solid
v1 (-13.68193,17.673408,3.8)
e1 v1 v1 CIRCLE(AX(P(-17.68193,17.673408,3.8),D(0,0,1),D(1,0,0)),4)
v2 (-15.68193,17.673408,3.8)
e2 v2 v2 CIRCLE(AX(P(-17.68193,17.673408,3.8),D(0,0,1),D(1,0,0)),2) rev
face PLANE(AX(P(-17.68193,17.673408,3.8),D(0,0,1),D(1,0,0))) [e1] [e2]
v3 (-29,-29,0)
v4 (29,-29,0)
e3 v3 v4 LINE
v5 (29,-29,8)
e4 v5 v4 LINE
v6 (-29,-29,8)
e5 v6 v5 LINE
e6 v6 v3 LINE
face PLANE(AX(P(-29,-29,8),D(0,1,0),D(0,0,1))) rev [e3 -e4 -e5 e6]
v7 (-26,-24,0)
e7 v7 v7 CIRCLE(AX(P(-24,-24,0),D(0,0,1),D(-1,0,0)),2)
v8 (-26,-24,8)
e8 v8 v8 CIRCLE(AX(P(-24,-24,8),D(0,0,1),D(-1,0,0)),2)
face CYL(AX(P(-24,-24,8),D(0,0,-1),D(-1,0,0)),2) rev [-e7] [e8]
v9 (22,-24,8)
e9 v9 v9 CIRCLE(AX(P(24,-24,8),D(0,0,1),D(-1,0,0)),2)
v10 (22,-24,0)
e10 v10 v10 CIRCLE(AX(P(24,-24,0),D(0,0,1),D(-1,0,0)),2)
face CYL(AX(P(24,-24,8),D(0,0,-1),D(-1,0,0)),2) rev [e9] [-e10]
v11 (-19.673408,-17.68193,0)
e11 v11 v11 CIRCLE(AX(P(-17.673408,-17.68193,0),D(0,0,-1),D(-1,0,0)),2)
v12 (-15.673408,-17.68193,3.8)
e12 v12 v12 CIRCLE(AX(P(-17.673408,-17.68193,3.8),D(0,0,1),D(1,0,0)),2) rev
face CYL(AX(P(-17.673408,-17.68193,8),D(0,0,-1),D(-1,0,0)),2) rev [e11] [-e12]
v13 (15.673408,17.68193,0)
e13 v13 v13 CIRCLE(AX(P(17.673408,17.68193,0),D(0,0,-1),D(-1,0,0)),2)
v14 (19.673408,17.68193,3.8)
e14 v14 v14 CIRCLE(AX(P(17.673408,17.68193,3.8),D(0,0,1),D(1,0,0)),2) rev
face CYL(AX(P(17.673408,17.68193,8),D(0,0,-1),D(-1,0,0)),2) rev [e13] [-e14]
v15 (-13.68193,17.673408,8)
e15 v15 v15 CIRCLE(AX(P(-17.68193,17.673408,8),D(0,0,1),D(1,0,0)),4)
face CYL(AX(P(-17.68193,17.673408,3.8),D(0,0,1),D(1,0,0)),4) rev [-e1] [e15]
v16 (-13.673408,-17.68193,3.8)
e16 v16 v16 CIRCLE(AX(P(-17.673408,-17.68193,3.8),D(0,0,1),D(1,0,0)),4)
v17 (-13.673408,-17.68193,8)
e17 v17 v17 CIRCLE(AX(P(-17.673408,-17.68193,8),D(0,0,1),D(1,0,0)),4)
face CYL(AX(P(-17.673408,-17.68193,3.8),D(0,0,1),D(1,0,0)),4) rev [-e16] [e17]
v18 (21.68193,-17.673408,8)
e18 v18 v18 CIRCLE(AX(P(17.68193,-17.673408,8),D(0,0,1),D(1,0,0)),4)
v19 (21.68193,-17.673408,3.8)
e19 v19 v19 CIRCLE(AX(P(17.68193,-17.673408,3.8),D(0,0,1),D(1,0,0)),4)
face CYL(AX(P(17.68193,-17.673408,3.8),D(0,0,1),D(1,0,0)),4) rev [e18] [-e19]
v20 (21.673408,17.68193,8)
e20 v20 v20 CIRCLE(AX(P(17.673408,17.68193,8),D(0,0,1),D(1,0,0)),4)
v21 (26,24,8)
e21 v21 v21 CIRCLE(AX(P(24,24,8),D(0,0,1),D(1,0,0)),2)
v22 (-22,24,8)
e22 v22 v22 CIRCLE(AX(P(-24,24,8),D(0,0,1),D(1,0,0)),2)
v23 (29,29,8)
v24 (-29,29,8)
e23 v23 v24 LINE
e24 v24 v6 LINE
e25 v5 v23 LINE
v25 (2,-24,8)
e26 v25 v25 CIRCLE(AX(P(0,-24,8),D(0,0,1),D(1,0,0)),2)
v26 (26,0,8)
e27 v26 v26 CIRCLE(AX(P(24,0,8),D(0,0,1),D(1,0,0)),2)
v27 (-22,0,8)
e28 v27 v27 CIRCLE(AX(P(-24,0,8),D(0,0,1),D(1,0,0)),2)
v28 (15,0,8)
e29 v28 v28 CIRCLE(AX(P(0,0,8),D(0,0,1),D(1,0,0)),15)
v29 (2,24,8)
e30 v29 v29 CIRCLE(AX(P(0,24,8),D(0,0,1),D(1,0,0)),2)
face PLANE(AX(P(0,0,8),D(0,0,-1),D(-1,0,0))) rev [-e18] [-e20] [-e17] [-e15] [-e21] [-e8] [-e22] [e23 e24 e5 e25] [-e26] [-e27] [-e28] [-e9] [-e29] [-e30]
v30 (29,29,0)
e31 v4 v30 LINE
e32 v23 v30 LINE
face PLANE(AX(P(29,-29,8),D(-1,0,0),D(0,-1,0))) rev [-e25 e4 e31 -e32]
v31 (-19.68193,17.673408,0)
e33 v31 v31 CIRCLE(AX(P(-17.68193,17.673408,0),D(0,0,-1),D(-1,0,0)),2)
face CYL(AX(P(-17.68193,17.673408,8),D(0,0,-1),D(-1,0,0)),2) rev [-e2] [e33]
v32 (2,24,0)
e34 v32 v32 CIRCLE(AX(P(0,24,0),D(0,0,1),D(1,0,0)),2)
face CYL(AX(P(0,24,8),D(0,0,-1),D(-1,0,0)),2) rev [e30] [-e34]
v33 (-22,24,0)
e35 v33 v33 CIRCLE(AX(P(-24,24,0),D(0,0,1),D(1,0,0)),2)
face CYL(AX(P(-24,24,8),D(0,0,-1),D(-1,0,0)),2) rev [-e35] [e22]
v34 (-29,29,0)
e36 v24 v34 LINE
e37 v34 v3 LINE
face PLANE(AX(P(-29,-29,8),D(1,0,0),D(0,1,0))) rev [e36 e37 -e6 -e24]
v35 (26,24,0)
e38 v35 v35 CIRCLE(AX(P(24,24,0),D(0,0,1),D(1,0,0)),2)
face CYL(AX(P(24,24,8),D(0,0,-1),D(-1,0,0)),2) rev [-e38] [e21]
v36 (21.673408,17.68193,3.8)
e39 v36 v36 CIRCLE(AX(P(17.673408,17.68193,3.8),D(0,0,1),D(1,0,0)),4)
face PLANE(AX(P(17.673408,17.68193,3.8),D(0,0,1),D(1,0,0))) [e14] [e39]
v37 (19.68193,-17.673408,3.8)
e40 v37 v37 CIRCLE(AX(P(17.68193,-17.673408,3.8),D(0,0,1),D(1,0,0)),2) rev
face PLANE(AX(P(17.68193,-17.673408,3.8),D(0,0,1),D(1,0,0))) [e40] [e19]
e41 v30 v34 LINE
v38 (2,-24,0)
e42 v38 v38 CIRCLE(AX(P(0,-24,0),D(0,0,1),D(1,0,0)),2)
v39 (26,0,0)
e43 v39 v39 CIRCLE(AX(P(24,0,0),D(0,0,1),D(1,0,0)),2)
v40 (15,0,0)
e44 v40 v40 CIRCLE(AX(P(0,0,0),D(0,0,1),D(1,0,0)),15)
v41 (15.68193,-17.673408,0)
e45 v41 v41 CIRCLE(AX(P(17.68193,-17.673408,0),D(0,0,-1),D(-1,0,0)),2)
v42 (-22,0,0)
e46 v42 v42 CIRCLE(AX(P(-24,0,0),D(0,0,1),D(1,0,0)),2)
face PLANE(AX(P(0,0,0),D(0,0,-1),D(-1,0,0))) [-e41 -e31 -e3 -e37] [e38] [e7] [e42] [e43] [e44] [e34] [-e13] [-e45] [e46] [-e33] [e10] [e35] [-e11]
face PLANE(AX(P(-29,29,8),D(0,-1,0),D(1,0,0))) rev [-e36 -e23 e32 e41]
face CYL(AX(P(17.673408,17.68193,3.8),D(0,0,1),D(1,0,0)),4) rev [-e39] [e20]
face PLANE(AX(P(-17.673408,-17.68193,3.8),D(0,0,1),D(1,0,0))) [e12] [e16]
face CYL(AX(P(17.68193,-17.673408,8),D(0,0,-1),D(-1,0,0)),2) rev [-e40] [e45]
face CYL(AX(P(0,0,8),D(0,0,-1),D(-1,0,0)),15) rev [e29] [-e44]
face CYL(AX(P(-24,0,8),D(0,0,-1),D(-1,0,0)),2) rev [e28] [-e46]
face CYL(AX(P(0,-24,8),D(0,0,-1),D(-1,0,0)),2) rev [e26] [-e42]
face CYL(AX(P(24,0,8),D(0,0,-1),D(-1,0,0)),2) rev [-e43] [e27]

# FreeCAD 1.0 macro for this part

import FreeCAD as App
import Part
import Sketcher

V = App.Vector
Q = App.Units.Quantity


def add_polygon(sketch, points):
    """Adds a closed chain of lines whose ends are joined by coincident constraints."""
    first, n = sketch.GeometryCount, len(points)
    for a, b in zip(points, points[1:] + points[:1]):
        sketch.addGeometry(Part.LineSegment(App.Vector(*a, 0), App.Vector(*b, 0)), False)
    for i in range(n):
        sketch.addConstraint(Sketcher.Constraint("Coincident", first + i, 2, first + (i + 1) % n, 1))

doc = App.newDocument("Part")
params = doc.addObject("Spreadsheet::Sheet", "Params")
for row, (alias, value) in enumerate([
    ("sketch1_diameter", "4 mm"),
    ("sketch1_diameter2", "30 mm"),
    ("sketch1_width", "58 mm"),
    ("pad1_length", "8 mm"),
    ("sketch2_diameter", "4 mm"),
    ("sketch3_diameter", "8 mm"),
    ("pocket2_length", "4.2 mm"),
], start=1):
    params.set(f"A{row}", alias)
    params.set(f"B{row}", "=" + value)
    params.setAlias(f"B{row}", alias)

body = doc.addObject("PartDesign::Body", "Body")

sketch1 = doc.addObject("Sketcher::SketchObject", "Sketch")
body.addObject(sketch1)
sketch1.AttachmentSupport = (doc.XY_Plane, [""])
sketch1.MapMode = "FlatFace"
add_polygon(sketch1, [(-29, 29), (-29, -29), (29, -29), (29, 29)])
sketch1.addGeometry(Part.Circle(V(-24, -24, 0), V(0, 0, 1), 2), False)
sketch1.addGeometry(Part.Circle(V(0, -24, 0), V(0, 0, 1), 2), False)
sketch1.addGeometry(Part.Circle(V(24, -24, 0), V(0, 0, 1), 2), False)
sketch1.addGeometry(Part.Circle(V(-24, 0, 0), V(0, 0, 1), 2), False)
sketch1.addGeometry(Part.Circle(V(-24, 24, 0), V(0, 0, 1), 2), False)
sketch1.addGeometry(Part.Circle(V(0, 0, 0), V(0, 0, 1), 15), False)
sketch1.addGeometry(Part.Circle(V(24, 0, 0), V(0, 0, 1), 2), False)
sketch1.addGeometry(Part.Circle(V(0, 24, 0), V(0, 0, 1), 2), False)
sketch1.addGeometry(Part.Circle(V(24, 24, 0), V(0, 0, 1), 2), False)
sketch1.addConstraint(Sketcher.Constraint("Vertical", 0))
sketch1.addConstraint(Sketcher.Constraint("Horizontal", 1))
sketch1.addConstraint(Sketcher.Constraint("Vertical", 2))
sketch1.addConstraint(Sketcher.Constraint("Horizontal", 3))
sketch1.addConstraint(Sketcher.Constraint("Coincident", 9, 3, -1, 1))
sketch1.addConstraint(Sketcher.Constraint("Equal", 4, 5))
sketch1.addConstraint(Sketcher.Constraint("Equal", 5, 6))
sketch1.addConstraint(Sketcher.Constraint("Equal", 6, 7))
sketch1.addConstraint(Sketcher.Constraint("Equal", 7, 8))
sketch1.addConstraint(Sketcher.Constraint("Equal", 8, 10))
sketch1.addConstraint(Sketcher.Constraint("Equal", 10, 11))
sketch1.addConstraint(Sketcher.Constraint("Equal", 11, 12))
sketch1.addConstraint(Sketcher.Constraint("Symmetric", 6, 3, 8, 3, -1, 1))
sketch1.addConstraint(Sketcher.Constraint("Symmetric", 7, 3, 10, 3, -1, 1))
sketch1.addConstraint(Sketcher.Constraint("Symmetric", 5, 3, 11, 3, -1, 1))
sketch1.addConstraint(Sketcher.Constraint("Symmetric", 4, 3, 12, 3, -1, 1))
sketch1.addConstraint(Sketcher.Constraint("Symmetric", 0, 2, 2, 2, -1, 1))
sketch1.addConstraint(Sketcher.Constraint("Symmetric", 4, 3, 6, 3, -2))
sketch1.addConstraint(Sketcher.Constraint("PointOnObject", 5, 3, -2))
sketch1.addConstraint(Sketcher.Constraint("PointOnObject", 7, 3, -1))
sketch1.addConstraint(Sketcher.Constraint("Horizontal", 4, 3, 5, 3))
sketch1.addConstraint(Sketcher.Constraint("Vertical", 4, 3, 7, 3))
sketch1.addConstraint(Sketcher.Constraint("Equal", 3, 0))
sketch1.addConstraint(Sketcher.Constraint("Diameter", 4, Q("4 mm")))
sketch1.addConstraint(Sketcher.Constraint("Diameter", 9, Q("30 mm")))
sketch1.addConstraint(Sketcher.Constraint("DistanceX", 1, 1, 1, 2, Q("58 mm")))
sketch1.addConstraint(Sketcher.Constraint("DistanceX", 4, 3, -1, 1, Q("24 mm")))
sketch1.addConstraint(Sketcher.Constraint("DistanceY", 4, 3, -1, 1, Q("24 mm")))
sketch1.setExpression("Constraints[27]", "Params.sketch1_diameter")
sketch1.setExpression("Constraints[28]", "Params.sketch1_diameter2")
sketch1.setExpression("Constraints[29]", "Params.sketch1_width")
pad1 = doc.addObject("PartDesign::Pad", "Pad")
body.addObject(pad1)
pad1.Profile = sketch1
pad1.setExpression("Length", "Params.pad1_length")

sketch2 = doc.addObject("Sketcher::SketchObject", "Sketch001")
body.addObject(sketch2)
sketch2.AttachmentSupport = (doc.XY_Plane, [""])
sketch2.MapMode = "FlatFace"
sketch2.addGeometry(Part.Circle(V(17.7, 17.7, 0), V(0, 0, 1), 2), False)
sketch2.addGeometry(Part.Circle(V(-17.7, 17.7, 0), V(0, 0, 1), 2), False)
sketch2.addGeometry(Part.Circle(V(-17.7, -17.7, 0), V(0, 0, 1), 2), False)
sketch2.addGeometry(Part.Circle(V(17.7, -17.7, 0), V(0, 0, 1), 2), False)
sketch2.addConstraint(Sketcher.Constraint("Equal", 0, 1))
sketch2.addConstraint(Sketcher.Constraint("Equal", 1, 2))
sketch2.addConstraint(Sketcher.Constraint("Equal", 2, 3))
sketch2.addConstraint(Sketcher.Constraint("Symmetric", 0, 3, 2, 3, -1, 1))
sketch2.addConstraint(Sketcher.Constraint("Symmetric", 1, 3, 3, 3, -1, 1))
sketch2.addConstraint(Sketcher.Constraint("Diameter", 0, Q("4 mm")))
sketch2.addConstraint(Sketcher.Constraint("DistanceX", -1, 1, 0, 3, Q("17.673408 mm")))
sketch2.addConstraint(Sketcher.Constraint("DistanceY", -1, 1, 0, 3, Q("17.68193 mm")))
sketch2.addConstraint(Sketcher.Constraint("DistanceX", 1, 3, -1, 1, Q("17.68193 mm")))
sketch2.addConstraint(Sketcher.Constraint("DistanceY", -1, 1, 1, 3, Q("17.673408 mm")))
sketch2.setExpression("Constraints[5]", "Params.sketch2_diameter")
pocket1 = doc.addObject("PartDesign::Pocket", "Pocket")
body.addObject(pocket1)
pocket1.Profile = sketch2
pocket1.Type = "ThroughAll"
pocket1.Reversed = True

sketch3 = doc.addObject("Sketcher::SketchObject", "Sketch002")
body.addObject(sketch3)
sketch3.AttachmentSupport = (doc.XY_Plane, [""])
sketch3.MapMode = "FlatFace"
sketch3.AttachmentOffset = App.Placement(V(0, 0, 8), App.Rotation())
sketch3.addGeometry(Part.Circle(V(-17.7, 17.7, 0), V(0, 0, 1), 4), False)
sketch3.addGeometry(Part.Circle(V(17.7, 17.7, 0), V(0, 0, 1), 4), False)
sketch3.addGeometry(Part.Circle(V(17.7, -17.7, 0), V(0, 0, 1), 4), False)
sketch3.addGeometry(Part.Circle(V(-17.7, -17.7, 0), V(0, 0, 1), 4), False)
sketch3.addConstraint(Sketcher.Constraint("Equal", 0, 1))
sketch3.addConstraint(Sketcher.Constraint("Equal", 1, 2))
sketch3.addConstraint(Sketcher.Constraint("Equal", 2, 3))
sketch3.addConstraint(Sketcher.Constraint("Symmetric", 0, 3, 2, 3, -1, 1))
sketch3.addConstraint(Sketcher.Constraint("Symmetric", 1, 3, 3, 3, -1, 1))
sketch3.addConstraint(Sketcher.Constraint("Diameter", 0, Q("8 mm")))
sketch3.addConstraint(Sketcher.Constraint("DistanceX", 0, 3, -1, 1, Q("17.68193 mm")))
sketch3.addConstraint(Sketcher.Constraint("DistanceY", -1, 1, 0, 3, Q("17.673408 mm")))
sketch3.addConstraint(Sketcher.Constraint("DistanceX", -1, 1, 1, 3, Q("17.673408 mm")))
sketch3.addConstraint(Sketcher.Constraint("DistanceY", -1, 1, 1, 3, Q("17.68193 mm")))
sketch3.setExpression("Constraints[5]", "Params.sketch3_diameter")
pocket2 = doc.addObject("PartDesign::Pocket", "Pocket001")
body.addObject(pocket2)
pocket2.Profile = sketch3
pocket2.setExpression("Length", "Params.pocket2_length")

doc.recompute()
